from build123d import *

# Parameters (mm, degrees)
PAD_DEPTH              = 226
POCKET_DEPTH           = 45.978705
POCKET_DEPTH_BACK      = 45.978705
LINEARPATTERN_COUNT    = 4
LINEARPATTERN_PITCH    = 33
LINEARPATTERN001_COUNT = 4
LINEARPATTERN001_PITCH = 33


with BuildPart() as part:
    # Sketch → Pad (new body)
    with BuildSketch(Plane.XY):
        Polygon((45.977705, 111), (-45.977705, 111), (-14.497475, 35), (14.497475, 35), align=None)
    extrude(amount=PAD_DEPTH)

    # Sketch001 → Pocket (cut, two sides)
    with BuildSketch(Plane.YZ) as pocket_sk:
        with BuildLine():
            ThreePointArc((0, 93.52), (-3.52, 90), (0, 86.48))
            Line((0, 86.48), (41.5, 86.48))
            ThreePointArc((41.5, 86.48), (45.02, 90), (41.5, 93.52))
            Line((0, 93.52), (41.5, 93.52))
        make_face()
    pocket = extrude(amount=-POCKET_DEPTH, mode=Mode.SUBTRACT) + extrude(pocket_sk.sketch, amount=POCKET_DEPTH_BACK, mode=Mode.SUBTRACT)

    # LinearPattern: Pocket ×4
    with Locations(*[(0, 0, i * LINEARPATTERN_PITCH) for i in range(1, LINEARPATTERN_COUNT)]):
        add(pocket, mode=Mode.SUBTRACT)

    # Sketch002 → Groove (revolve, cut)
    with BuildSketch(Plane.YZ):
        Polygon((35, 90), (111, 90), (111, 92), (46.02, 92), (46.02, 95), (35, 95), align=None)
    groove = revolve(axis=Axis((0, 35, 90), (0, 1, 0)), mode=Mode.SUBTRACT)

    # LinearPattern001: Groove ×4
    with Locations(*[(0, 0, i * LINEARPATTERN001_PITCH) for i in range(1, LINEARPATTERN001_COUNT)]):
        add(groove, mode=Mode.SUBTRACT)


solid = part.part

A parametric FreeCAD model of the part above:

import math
import FreeCAD as App
import Part
import Sketcher
Q = App.Units.Quantity


def add_polygon(sketch, points):
    """Adds a closed chain of lines whose ends are joined by coincident constraints."""
    first, n = sketch.GeometryCount, len(points)
    for a, b in zip(points, points[1:] + points[:1]):
        sketch.addGeometry(Part.LineSegment(App.Vector(*a, 0), App.Vector(*b, 0)), False)
    for i in range(n):
        sketch.addConstraint(Sketcher.Constraint("Coincident", first + i, 2, first + (i + 1) % n, 1))

doc = App.newDocument("Part")
body = doc.addObject("PartDesign::Body", "Body")

sketch1 = body.newObject("Sketcher::SketchObject", "Sketch")
sketch1.AttachmentSupport = (doc.getObject("XY_Plane"), [""])
sketch1.MapMode = "FlatFace"
add_polygon(sketch1, [(46, 111), (-46, 111), (-14, 35), (14, 35)])
sketch1.addConstraint(Sketcher.Constraint("Horizontal", 0))
sketch1.addConstraint(Sketcher.Constraint("Horizontal", 2))
sketch1.addConstraint(Sketcher.Constraint("Equal", 1, 3))
sketch1.addConstraint(Sketcher.Constraint("DistanceY", -1, 1, 0, 2, Q("111 mm")))
sketch1.addConstraint(Sketcher.Constraint("DistanceY", -1, 1, 1, 2, Q("35 mm")))
sketch1.addConstraint(Sketcher.Constraint("Angle", 1, Q("-67.5 deg")))
sketch1.addConstraint(Sketcher.Constraint("DistanceX", 0, 2, 0, 1, Q("91.95541 mm")))
sketch1.addConstraint(Sketcher.Constraint("DistanceX", 0, 2, -1, 1, Q("45.977705 mm")))
pad1 = body.newObject("PartDesign::Pad", "Pad")
pad1.Profile = sketch1
pad1.Length = 226

sketch2 = body.newObject("Sketcher::SketchObject", "Sketch001")
sketch2.AttachmentSupport = (doc.getObject("YZ_Plane"), [""])
sketch2.MapMode = "FlatFace"
sketch2.addGeometry(Part.ArcOfCircle(Part.Circle(App.Vector(0, 90, 0), App.Vector(0, 0, 1), 3.5), math.radians(90), math.radians(270)), False)
sketch2.addGeometry(Part.LineSegment(App.Vector(0, 86.5, 0), App.Vector(41.5, 86.5, 0)), False)
sketch2.addGeometry(Part.ArcOfCircle(Part.Circle(App.Vector(41.5, 90, 0), App.Vector(0, 0, 1), 3.5), math.radians(-90), math.radians(90)), False)
sketch2.addGeometry(Part.LineSegment(App.Vector(41.5, 93.5, 0), App.Vector(0, 93.5, 0)), False)
sketch2.addConstraint(Sketcher.Constraint("Tangent", 0, 2, 1, 1))
sketch2.addConstraint(Sketcher.Constraint("Tangent", 1, 2, 2, 1))
sketch2.addConstraint(Sketcher.Constraint("Tangent", 2, 2, 3, 1))
sketch2.addConstraint(Sketcher.Constraint("Tangent", 3, 2, 0, 1))
sketch2.addConstraint(Sketcher.Constraint("Horizontal", 1))
sketch2.addConstraint(Sketcher.Constraint("Horizontal", 3))
sketch2.addConstraint(Sketcher.Constraint("PointOnObject", 0, 3, -2))
sketch2.addConstraint(Sketcher.Constraint("Radius", 0, Q("3.52 mm")))
sketch2.addConstraint(Sketcher.Constraint("DistanceX", 1, 1, 1, 2, Q("41.5 mm")))
sketch2.addConstraint(Sketcher.Constraint("DistanceY", -1, 1, 0, 3, Q("90 mm")))
pocket1 = body.newObject("PartDesign::Pocket", "Pocket")
pocket1.Profile = sketch2
pocket1.Type = "ThroughAll"
pocket1.Midplane = True
doc.recompute()

linearpattern = body.newObject("PartDesign::LinearPattern", "LinearPattern")
linearpattern.Originals = [pocket1]
linearpattern.Direction = (doc.getObject("Z_Axis"), [""])
linearpattern.Mode = "offset"
linearpattern.Offset = 33
linearpattern.Occurrences = 4
body.Tip = linearpattern

sketch3 = body.newObject("Sketcher::SketchObject", "Sketch002")
sketch3.AttachmentSupport = (doc.getObject("YZ_Plane"), [""])
sketch3.MapMode = "FlatFace"
add_polygon(sketch3, [(35, 90), (111, 90), (111, 92), (46, 92), (46, 95), (35, 95)])
sketch3.addGeometry(Part.LineSegment(App.Vector(35, 90, 0), App.Vector(111, 90, 0)), True)
sketch3.addConstraint(Sketcher.Constraint("Horizontal", 0))
sketch3.addConstraint(Sketcher.Constraint("Vertical", 1))
sketch3.addConstraint(Sketcher.Constraint("Horizontal", 2))
sketch3.addConstraint(Sketcher.Constraint("Vertical", 3))
sketch3.addConstraint(Sketcher.Constraint("Horizontal", 4))
sketch3.addConstraint(Sketcher.Constraint("Vertical", 5))
sketch3.addConstraint(Sketcher.Constraint("Horizontal", 6))
sketch3.addConstraint(Sketcher.Constraint("Coincident", 6, 1, 5, 2))
sketch3.addConstraint(Sketcher.Constraint("Vertical", 1, 2, 6, 2))
sketch3.addConstraint(Sketcher.Constraint("DistanceX", 0, 1, 0, 2, Q("76 mm")))
sketch3.addConstraint(Sketcher.Constraint("DistanceY", 1, 1, 1, 2, Q("2 mm")))
sketch3.addConstraint(Sketcher.Constraint("DistanceY", 3, 1, 3, 2, Q("3 mm")))
sketch3.addConstraint(Sketcher.Constraint("DistanceX", -1, 1, 0, 2, Q("111 mm")))
sketch3.addConstraint(Sketcher.Constraint("DistanceY", -1, 1, 0, 2, Q("90 mm")))
sketch3.addConstraint(Sketcher.Constraint("DistanceX", 2, 2, 2, 1, Q("64.98 mm")))
groove = body.newObject("PartDesign::Groove", "Groove")
groove.Profile = sketch3
groove.ReferenceAxis = (sketch3, ["Axis0"])
groove.Angle = 360
doc.recompute()

linearpattern2 = body.newObject("PartDesign::LinearPattern", "LinearPattern001")
linearpattern2.Originals = [groove]
linearpattern2.Direction = (doc.getObject("Z_Axis"), [""])
linearpattern2.Mode = "offset"
linearpattern2.Offset = 33
linearpattern2.Occurrences = 4
body.Tip = linearpattern2

doc.recompute()
